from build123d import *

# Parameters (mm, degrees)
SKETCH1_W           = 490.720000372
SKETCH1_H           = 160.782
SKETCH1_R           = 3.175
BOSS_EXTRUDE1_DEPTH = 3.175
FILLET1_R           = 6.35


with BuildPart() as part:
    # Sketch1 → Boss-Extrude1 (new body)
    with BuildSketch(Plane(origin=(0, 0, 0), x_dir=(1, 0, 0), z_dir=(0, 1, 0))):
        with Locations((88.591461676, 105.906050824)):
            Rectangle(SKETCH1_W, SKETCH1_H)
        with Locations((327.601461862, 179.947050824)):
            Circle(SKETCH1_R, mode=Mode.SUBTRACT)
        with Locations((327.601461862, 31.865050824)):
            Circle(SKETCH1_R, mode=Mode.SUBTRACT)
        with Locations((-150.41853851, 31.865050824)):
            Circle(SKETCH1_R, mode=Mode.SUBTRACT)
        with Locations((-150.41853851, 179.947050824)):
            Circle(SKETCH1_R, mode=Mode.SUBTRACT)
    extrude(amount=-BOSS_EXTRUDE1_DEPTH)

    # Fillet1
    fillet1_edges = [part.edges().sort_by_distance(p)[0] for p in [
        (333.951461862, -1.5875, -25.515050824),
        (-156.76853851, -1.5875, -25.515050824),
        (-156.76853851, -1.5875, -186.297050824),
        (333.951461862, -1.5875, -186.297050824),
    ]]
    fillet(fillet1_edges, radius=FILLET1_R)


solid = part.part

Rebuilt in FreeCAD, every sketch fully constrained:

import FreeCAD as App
import Part
import Sketcher
Q = App.Units.Quantity


def edges_at(feature, points):
    """Names of the edges that pass closest to the given points."""
    edges = feature.Shape.Edges
    near = lambda p: min(range(len(edges)), key=lambda i: edges[i].distToShape(Part.Vertex(*p))[0])
    return sorted({f"Edge{near(p) + 1}" for p in points})

doc = App.newDocument("Part")
body = doc.addObject("PartDesign::Body", "Body")

# Sketch on XZ plane
sketch1 = body.newObject("Sketcher::SketchObject", "Sketch")
sketch1.AttachmentSupport = (doc.getObject("XZ_Plane"), [""])
sketch1.MapMode = "FlatFace"
sketch1.addGeometry([
    Part.LineSegment(App.Vector(-156.8, -186.3, 0), App.Vector(-156.8, -25.5, 0)),  # 0
    Part.LineSegment(App.Vector(-156.8, -25.5, 0), App.Vector(334, -25.5, 0)),  # 1
    Part.LineSegment(App.Vector(334, -25.5, 0), App.Vector(334, -186.3, 0)),  # 2
    Part.LineSegment(App.Vector(334, -186.3, 0), App.Vector(-156.8, -186.3, 0)),  # 3
    Part.Circle(App.Vector(-150.4, -31.9, 0), App.Vector(0, 0, 1), 3.2),  # 4
    Part.Circle(App.Vector(327.6, -31.9, 0), App.Vector(0, 0, 1), 3.2),  # 5
    Part.Circle(App.Vector(-150.4, -179.9, 0), App.Vector(0, 0, 1), 3.2),  # 6
    Part.Circle(App.Vector(327.6, -179.9, 0), App.Vector(0, 0, 1), 3.2),  # 7
], False)
sketch1.addConstraint([
    Sketcher.Constraint("Coincident", 0, 2, 1, 1),
    Sketcher.Constraint("Coincident", 1, 2, 2, 1),
    Sketcher.Constraint("Coincident", 2, 2, 3, 1),
    Sketcher.Constraint("Coincident", 3, 2, 0, 1),
    Sketcher.Constraint("Vertical", 0),
    Sketcher.Constraint("Horizontal", 1),
    Sketcher.Constraint("Vertical", 2),
    Sketcher.Constraint("Horizontal", 3),
    Sketcher.Constraint("Equal", 4, 5),
    Sketcher.Constraint("Equal", 5, 6),
    Sketcher.Constraint("Equal", 6, 7),
    Sketcher.Constraint("Horizontal", 4, 3, 5, 3),
    Sketcher.Constraint("Horizontal", 6, 3, 7, 3),
    Sketcher.Constraint("Vertical", 4, 3, 6, 3),
    Sketcher.Constraint("Vertical", 5, 3, 7, 3),
    Sketcher.Constraint("Diameter", 4, Q("0.25 in")),
    Sketcher.Constraint("DistanceY", 0, 1, 0, 2, Q("6.33 in")),
    Sketcher.Constraint("DistanceY", 6, 3, 4, 3, Q("5.83 in")),
    Sketcher.Constraint("DistanceX", 0, 2, 4, 3, Q("0.25 in")),
    Sketcher.Constraint("DistanceY", 4, 3, 0, 2, Q("0.25 in")),
    Sketcher.Constraint("DistanceX", 5, 3, 1, 2, Q("0.25 in")),
    Sketcher.Constraint("DistanceX", 1, 1, 1, 2, 490.72),
    Sketcher.Constraint("DistanceX", 4, 3, -1, 1, 150.418539),
    Sketcher.Constraint("DistanceY", 4, 3, -1, 1, 31.865051),
])
pad1 = body.newObject("PartDesign::Pad", "Pad")
pad1.Profile = sketch1
pad1.Length = Q("0.125 in")
doc.recompute()

fillet = body.newObject("PartDesign::Fillet", "Fillet")
fillet.Base = (pad1, edges_at(pad1, [
    (333.951, -1.587, -25.515),
    (-156.769, -1.587, -25.515),
    (-156.769, -1.587, -186.297),
    (333.951, -1.587, -186.297),
]))
fillet.Radius = Q("0.25 in")

doc.recompute()
